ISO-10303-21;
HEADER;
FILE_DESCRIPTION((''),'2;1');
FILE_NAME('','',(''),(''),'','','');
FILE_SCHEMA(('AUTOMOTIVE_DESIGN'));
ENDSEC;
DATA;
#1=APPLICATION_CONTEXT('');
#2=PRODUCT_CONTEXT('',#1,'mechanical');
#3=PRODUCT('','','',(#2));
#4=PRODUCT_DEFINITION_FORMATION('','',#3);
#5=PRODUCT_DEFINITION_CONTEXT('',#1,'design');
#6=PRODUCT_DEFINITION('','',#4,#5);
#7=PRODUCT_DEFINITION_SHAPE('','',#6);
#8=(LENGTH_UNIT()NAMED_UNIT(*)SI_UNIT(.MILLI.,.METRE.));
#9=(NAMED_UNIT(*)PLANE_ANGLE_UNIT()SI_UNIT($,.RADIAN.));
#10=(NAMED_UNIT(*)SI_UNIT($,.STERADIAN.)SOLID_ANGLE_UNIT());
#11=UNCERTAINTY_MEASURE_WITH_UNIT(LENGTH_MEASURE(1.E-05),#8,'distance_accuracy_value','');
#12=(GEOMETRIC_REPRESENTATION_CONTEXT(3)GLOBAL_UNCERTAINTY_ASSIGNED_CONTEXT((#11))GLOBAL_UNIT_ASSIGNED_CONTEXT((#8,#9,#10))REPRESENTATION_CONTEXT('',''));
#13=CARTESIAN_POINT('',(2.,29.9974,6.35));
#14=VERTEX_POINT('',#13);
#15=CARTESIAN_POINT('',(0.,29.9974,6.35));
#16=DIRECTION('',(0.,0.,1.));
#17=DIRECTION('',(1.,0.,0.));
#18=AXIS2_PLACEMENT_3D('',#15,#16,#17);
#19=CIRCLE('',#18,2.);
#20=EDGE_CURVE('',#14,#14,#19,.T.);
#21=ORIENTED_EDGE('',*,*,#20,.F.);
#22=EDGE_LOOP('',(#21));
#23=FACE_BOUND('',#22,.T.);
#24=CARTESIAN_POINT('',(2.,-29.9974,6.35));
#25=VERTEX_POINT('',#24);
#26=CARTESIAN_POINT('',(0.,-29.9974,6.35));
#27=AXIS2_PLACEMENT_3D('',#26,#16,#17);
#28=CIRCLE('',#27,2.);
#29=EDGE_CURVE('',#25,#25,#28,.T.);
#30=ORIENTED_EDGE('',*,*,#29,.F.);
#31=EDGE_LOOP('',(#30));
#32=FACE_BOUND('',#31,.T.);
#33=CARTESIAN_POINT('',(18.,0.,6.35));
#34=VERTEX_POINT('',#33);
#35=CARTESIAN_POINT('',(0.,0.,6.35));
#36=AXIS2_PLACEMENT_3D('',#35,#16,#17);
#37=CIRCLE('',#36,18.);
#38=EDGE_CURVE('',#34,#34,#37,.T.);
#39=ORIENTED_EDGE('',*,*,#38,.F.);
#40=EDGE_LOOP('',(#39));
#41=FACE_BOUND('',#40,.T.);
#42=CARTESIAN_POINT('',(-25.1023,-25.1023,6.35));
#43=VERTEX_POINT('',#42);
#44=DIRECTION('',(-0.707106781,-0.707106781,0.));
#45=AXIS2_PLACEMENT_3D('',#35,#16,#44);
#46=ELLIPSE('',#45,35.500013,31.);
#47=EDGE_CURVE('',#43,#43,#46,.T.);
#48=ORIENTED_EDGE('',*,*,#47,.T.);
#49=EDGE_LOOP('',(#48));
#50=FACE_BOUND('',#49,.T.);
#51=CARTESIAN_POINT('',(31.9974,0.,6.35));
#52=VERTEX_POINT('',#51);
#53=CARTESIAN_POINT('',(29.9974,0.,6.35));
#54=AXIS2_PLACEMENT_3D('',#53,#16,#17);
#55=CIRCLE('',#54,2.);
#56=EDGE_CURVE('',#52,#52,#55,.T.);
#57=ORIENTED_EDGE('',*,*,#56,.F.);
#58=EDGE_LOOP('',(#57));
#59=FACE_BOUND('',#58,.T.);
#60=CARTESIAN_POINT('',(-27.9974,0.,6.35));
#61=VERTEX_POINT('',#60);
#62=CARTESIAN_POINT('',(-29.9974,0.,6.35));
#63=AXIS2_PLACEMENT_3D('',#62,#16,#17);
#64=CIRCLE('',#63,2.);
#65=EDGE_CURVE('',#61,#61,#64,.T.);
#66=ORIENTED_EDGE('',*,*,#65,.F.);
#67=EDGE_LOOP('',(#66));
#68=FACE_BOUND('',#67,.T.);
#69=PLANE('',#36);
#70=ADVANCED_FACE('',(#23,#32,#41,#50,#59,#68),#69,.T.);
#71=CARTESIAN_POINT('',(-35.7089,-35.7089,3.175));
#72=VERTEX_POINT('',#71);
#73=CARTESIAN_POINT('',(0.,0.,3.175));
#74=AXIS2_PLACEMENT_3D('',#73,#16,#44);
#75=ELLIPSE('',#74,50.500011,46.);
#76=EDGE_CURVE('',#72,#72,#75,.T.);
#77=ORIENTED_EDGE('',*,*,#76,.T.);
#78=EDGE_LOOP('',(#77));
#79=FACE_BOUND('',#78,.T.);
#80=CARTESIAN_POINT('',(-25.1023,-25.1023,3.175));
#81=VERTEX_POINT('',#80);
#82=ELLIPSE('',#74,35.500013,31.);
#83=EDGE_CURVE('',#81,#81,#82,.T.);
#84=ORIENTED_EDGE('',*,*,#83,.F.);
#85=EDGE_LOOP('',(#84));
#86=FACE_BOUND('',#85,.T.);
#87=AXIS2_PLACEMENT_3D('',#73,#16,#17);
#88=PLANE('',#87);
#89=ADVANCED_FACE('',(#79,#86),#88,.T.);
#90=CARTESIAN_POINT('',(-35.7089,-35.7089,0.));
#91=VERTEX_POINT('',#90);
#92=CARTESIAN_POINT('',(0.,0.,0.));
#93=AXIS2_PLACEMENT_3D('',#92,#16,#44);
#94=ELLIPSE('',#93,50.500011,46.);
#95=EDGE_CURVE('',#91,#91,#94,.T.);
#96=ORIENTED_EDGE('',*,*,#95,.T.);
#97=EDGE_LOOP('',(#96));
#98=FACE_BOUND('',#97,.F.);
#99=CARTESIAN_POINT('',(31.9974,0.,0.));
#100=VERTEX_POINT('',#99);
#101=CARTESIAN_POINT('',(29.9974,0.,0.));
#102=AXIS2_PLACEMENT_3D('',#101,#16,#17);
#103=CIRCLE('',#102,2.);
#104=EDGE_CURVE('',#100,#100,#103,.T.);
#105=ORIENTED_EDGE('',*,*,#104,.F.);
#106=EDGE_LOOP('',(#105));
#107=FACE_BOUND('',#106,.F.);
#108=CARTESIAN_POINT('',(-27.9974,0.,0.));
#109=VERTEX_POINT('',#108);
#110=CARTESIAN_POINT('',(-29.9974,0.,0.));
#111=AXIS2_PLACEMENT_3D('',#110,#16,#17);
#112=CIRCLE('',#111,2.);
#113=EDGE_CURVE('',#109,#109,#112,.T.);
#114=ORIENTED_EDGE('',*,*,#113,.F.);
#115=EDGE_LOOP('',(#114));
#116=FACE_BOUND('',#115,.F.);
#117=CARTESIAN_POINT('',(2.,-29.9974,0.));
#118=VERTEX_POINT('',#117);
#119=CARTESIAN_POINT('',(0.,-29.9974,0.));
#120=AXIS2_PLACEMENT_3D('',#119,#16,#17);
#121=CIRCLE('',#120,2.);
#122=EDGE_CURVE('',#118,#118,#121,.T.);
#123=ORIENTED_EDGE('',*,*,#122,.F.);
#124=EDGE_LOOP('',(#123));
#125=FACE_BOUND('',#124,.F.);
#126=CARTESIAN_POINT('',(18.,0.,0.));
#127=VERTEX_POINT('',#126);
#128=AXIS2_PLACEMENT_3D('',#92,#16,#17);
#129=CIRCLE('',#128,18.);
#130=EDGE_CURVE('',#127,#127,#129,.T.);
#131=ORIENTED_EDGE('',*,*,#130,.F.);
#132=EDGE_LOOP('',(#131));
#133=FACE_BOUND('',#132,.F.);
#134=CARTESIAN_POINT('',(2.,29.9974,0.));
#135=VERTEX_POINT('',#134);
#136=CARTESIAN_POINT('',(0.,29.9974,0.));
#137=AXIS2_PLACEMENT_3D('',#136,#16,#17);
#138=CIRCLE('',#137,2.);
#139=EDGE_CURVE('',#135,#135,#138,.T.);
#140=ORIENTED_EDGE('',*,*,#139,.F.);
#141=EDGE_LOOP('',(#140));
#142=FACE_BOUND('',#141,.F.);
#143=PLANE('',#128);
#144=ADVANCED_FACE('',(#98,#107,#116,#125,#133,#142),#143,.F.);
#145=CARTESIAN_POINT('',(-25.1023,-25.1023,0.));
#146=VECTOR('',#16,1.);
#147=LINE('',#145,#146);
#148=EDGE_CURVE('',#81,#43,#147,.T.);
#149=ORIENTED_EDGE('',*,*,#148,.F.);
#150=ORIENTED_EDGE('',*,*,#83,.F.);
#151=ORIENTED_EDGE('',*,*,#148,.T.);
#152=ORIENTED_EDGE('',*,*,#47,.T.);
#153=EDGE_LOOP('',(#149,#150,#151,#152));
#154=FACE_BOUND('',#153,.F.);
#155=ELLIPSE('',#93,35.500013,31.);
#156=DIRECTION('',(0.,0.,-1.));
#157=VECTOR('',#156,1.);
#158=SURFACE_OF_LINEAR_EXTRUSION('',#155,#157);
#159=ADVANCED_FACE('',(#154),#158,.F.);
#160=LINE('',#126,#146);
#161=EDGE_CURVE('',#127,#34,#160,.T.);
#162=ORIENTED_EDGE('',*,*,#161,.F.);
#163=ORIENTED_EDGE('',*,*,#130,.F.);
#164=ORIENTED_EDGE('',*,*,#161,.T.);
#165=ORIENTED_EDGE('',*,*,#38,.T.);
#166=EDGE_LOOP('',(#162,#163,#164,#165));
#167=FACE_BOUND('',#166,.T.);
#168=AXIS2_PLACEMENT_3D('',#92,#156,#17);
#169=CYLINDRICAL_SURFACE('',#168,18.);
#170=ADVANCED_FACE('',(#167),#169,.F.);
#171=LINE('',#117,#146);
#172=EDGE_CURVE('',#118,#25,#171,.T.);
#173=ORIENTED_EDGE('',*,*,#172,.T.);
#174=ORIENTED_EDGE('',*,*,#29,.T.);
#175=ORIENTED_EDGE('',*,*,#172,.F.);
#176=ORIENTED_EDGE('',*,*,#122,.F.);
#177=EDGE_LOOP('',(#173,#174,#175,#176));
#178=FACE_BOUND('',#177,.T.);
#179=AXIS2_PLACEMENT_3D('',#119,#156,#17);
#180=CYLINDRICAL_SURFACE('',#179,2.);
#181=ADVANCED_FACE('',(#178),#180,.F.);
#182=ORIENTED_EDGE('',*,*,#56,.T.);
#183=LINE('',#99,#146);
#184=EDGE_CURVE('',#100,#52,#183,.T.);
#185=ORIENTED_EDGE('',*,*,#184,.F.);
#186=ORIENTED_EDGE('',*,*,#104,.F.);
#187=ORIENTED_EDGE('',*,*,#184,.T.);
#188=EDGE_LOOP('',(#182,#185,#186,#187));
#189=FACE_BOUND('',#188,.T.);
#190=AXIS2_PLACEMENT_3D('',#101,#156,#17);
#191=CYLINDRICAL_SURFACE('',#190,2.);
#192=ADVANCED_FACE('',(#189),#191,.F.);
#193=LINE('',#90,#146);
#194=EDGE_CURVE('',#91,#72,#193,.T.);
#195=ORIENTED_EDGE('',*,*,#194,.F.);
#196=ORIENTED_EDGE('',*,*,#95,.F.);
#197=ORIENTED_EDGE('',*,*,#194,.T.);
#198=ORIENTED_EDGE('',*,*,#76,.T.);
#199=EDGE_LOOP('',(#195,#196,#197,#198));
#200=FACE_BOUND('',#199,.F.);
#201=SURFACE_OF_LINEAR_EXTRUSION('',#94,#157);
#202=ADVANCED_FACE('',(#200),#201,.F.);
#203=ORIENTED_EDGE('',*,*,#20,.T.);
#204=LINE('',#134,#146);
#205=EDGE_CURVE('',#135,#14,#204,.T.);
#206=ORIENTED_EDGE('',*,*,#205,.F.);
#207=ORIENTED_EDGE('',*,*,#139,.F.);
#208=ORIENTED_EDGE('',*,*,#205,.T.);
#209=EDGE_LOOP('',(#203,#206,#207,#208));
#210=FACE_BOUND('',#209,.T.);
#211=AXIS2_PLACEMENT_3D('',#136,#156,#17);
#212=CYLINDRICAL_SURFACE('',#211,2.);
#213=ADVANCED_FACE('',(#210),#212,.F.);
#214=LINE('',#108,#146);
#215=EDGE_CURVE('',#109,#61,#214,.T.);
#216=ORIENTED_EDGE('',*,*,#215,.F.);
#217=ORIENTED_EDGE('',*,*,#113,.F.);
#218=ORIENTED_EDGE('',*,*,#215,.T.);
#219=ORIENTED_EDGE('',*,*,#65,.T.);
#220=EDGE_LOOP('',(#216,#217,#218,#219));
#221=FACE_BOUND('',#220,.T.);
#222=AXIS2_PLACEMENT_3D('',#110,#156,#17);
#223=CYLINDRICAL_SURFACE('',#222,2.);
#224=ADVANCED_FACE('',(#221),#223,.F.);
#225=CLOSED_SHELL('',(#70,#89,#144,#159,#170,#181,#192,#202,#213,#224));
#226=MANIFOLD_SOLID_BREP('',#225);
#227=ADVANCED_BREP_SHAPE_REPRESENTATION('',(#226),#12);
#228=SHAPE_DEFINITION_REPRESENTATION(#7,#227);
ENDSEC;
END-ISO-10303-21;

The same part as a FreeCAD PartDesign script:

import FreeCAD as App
import Part
import Sketcher
from FreeCAD import Vector
Q = App.Units.Quantity

doc = App.newDocument("Part")
body = doc.addObject("PartDesign::Body", "Body")

sketch1 = body.newObject("Sketcher::SketchObject", "Sketch")
sketch1.AttachmentSupport = (doc.getObject("XY_Plane"), [""])
sketch1.MapMode = "FlatFace"
sketch1.addGeometry(Part.Ellipse(Vector(-25.1023, -25.1023, 0), Vector(21.92031, -21.92031, 0), Vector(0, 0, 0)), False)
sketch1.addGeometry(Part.Circle(Vector(0, -29.9974, 0), Vector(0, 0, 1), 2), False)
sketch1.addGeometry(Part.Circle(Vector(-29.9974, 0, 0), Vector(0, 0, 1), 2), False)
sketch1.addGeometry(Part.Circle(Vector(0, 0, 0), Vector(0, 0, 1), 18), False)
sketch1.addGeometry(Part.Circle(Vector(29.9974, 0, 0), Vector(0, 0, 1), 2), False)
sketch1.addGeometry(Part.Circle(Vector(0, 29.9974, 0), Vector(0, 0, 1), 2), False)
sketch1.addConstraint(Sketcher.Constraint("Block", 0))
sketch1.addConstraint(Sketcher.Constraint("Coincident", 3, 3, -1, 1))
sketch1.addConstraint(Sketcher.Constraint("Equal", 1, 2))
sketch1.addConstraint(Sketcher.Constraint("Equal", 2, 4))
sketch1.addConstraint(Sketcher.Constraint("Equal", 4, 5))
sketch1.addConstraint(Sketcher.Constraint("Symmetric", 2, 3, 4, 3, -1, 1))
sketch1.addConstraint(Sketcher.Constraint("Symmetric", 1, 3, 5, 3, -1, 1))
sketch1.addConstraint(Sketcher.Constraint("PointOnObject", 1, 3, -2))
sketch1.addConstraint(Sketcher.Constraint("PointOnObject", 2, 3, -1))
sketch1.addConstraint(Sketcher.Constraint("Diameter", 3, Q("36 mm")))
sketch1.addConstraint(Sketcher.Constraint("Diameter", 1, Q("4 mm")))
sketch1.addConstraint(Sketcher.Constraint("DistanceY", 1, 3, -1, 1, Q("29.9974 mm")))
sketch1.addConstraint(Sketcher.Constraint("DistanceX", 2, 3, -1, 1, Q("29.9974 mm")))
pad1 = body.newObject("PartDesign::Pad", "Pad")
pad1.Profile = sketch1
pad1.Length = 6.35

sketch2 = body.newObject("Sketcher::SketchObject", "Sketch001")
sketch2.AttachmentSupport = (doc.getObject("XY_Plane"), [""])
sketch2.MapMode = "FlatFace"
sketch2.addGeometry(Part.Ellipse(Vector(-35.7089, -35.7089, 0), Vector(32.526912, -32.526912, 0), Vector(0, 0, 0)), False)
sketch2.addGeometry(Part.Ellipse(Vector(-25.1023, -25.1023, 0), Vector(21.92031, -21.92031, 0), Vector(0, 0, 0)), False)
sketch2.addConstraint(Sketcher.Constraint("Block", 0))
sketch2.addConstraint(Sketcher.Constraint("Block", 1))
pad2 = body.newObject("PartDesign::Pad", "Pad001")
pad2.Profile = sketch2
pad2.Length = 3.175

doc.recompute()
